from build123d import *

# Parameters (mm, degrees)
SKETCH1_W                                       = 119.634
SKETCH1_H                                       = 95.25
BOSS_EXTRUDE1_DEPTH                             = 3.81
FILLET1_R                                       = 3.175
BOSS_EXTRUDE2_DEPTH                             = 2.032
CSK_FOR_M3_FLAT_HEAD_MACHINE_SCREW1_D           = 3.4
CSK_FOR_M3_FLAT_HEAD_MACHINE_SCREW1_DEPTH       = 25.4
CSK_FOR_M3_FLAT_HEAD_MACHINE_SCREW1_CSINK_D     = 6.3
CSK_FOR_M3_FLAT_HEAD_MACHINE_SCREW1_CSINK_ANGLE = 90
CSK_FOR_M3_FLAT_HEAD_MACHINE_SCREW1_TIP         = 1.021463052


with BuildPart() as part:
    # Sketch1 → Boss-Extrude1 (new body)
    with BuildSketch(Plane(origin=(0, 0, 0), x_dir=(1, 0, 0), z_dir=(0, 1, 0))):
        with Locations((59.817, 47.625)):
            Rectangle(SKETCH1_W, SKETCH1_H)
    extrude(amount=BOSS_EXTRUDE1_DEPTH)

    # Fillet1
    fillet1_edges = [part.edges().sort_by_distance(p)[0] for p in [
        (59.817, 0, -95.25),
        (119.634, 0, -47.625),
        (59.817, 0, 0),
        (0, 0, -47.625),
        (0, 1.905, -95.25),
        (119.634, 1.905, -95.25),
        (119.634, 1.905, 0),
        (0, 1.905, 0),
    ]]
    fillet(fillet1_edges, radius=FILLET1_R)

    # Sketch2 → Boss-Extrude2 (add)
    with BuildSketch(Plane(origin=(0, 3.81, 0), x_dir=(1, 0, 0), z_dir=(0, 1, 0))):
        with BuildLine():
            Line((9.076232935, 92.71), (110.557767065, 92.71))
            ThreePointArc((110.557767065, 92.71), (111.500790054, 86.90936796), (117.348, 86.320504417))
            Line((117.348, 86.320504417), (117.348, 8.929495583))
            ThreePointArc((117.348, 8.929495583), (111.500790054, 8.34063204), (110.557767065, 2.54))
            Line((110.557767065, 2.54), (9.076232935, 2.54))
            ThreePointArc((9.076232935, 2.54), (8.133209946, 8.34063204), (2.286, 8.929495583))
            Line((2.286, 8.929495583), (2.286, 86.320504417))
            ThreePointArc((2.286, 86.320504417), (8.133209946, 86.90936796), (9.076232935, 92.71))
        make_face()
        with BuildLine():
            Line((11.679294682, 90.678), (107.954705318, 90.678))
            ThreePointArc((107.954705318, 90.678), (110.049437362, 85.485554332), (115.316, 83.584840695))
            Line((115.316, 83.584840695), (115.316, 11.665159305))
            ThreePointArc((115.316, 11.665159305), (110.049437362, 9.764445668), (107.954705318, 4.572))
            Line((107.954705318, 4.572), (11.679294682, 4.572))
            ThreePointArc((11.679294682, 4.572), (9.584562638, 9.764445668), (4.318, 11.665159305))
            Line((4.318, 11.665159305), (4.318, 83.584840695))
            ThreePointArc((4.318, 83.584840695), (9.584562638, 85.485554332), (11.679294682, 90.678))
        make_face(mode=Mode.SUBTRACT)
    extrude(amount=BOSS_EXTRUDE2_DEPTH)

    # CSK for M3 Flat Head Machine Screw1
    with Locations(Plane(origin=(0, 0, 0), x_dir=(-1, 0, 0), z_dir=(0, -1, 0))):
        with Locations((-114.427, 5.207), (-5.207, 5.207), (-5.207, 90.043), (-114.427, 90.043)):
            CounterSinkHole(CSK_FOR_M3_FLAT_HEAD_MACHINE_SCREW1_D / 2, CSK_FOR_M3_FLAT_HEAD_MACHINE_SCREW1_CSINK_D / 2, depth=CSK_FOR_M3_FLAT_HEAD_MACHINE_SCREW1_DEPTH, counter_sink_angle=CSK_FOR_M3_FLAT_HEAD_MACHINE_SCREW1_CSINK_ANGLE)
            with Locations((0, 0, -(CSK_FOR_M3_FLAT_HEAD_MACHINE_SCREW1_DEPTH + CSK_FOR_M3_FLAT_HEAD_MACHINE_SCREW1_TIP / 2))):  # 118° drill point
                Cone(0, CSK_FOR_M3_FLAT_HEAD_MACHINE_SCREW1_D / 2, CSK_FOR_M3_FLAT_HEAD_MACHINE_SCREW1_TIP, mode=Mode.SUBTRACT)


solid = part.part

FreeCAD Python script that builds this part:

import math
import FreeCAD as App
import Part
import Sketcher

V = App.Vector
Q = App.Units.Quantity


def edges_at(feature, points):
    """Names of the edges that pass closest to the given points."""
    edges = feature.Shape.Edges
    near = lambda p: min(range(len(edges)), key=lambda i: edges[i].distToShape(Part.Vertex(*p))[0])
    return sorted({f"Edge{near(p) + 1}" for p in points})


def add_polygon(sketch, points):
    """Adds a closed chain of lines whose ends are joined by coincident constraints."""
    first, n = sketch.GeometryCount, len(points)
    for a, b in zip(points, points[1:] + points[:1]):
        sketch.addGeometry(Part.LineSegment(App.Vector(*a, 0), App.Vector(*b, 0)), False)
    for i in range(n):
        sketch.addConstraint(Sketcher.Constraint("Coincident", first + i, 2, first + (i + 1) % n, 1))

doc = App.newDocument("Part")
body = doc.addObject("PartDesign::Body", "Body")

# Sketch on XZ plane
sketch1 = doc.addObject("Sketcher::SketchObject", "Sketch")
body.addObject(sketch1)
sketch1.AttachmentSupport = (doc.XZ_Plane, [""])
sketch1.MapMode = "FlatFace"
add_polygon(sketch1, [(0, -95), (0, 0), (120, 0), (120, -95)])  # lines 0-3
sketch1.addConstraint([
    Sketcher.Constraint("Vertical", 0),
    Sketcher.Constraint("Horizontal", 1),
    Sketcher.Constraint("Vertical", 2),
    Sketcher.Constraint("Horizontal", 3),
    Sketcher.Constraint("Coincident", 0, 2, -1, 1),
    Sketcher.Constraint("DistanceX", 1, 1, 1, 2, Q("4.71 in")),
    Sketcher.Constraint("DistanceY", 0, 1, 0, 2, Q("3.75 in")),
])
pad1 = doc.addObject("PartDesign::Pad", "Pad")
body.addObject(pad1)
pad1.Profile = sketch1
pad1.Length = Q("0.15 in")
pad1.Reversed = True
doc.recompute()

fillet = doc.addObject("PartDesign::Fillet", "Fillet")
body.addObject(fillet)
fillet.Base = (pad1, edges_at(pad1, [
    (59.817, 0, -95.25),
    (119.634, 0, -47.625),
    (59.817, 0, 0),
    (0, 0, -47.625),
    (0, 1.905, -95.25),
    (119.634, 1.905, -95.25),
    (119.634, 1.905, 0),
    (0, 1.905, 0),
]))
fillet.Radius = Q("0.125 in")

# Sketch on XZ plane
sketch2 = doc.addObject("Sketcher::SketchObject", "Sketch001")
body.addObject(sketch2)
sketch2.AttachmentSupport = (doc.XZ_Plane, [""])
sketch2.MapMode = "FlatFace"
sketch2.AttachmentOffset = App.Placement(V(0, 0, -0.15 * 25.4), App.Rotation())
sketch2.addGeometry([
    Part.LineSegment(V(110.6, -92.7, 0), V(9.1, -92.7, 0)),  # 0
    Part.ArcOfCircle(Part.Circle(V(4.8, -90.4, 0), V(0, 0, 1), 4.8), math.radians(-28), math.radians(122)),  # 1
    Part.LineSegment(V(2.3, -86.3, 0), V(2.3, -8.9, 0)),  # 2
    Part.ArcOfCircle(Part.Circle(V(4.8, -4.8, 0), V(0, 0, 1), 4.8), math.radians(-122), math.radians(28)),  # 3
    Part.LineSegment(V(9.1, -2.5, 0), V(110.6, -2.5, 0)),  # 4
    Part.ArcOfCircle(Part.Circle(V(114.8, -4.8, 0), V(0, 0, 1), 4.8), math.radians(152), math.radians(302)),  # 5
    Part.LineSegment(V(117.3, -8.9, 0), V(117.3, -86.3, 0)),  # 6
    Part.ArcOfCircle(Part.Circle(V(114.8, -90.4, 0), V(0, 0, 1), 4.8), math.radians(58), math.radians(208)),  # 7
    Part.LineSegment(V(11.7, -90.7, 0), V(108, -90.7, 0)),  # 8
    Part.ArcOfCircle(Part.Circle(V(114.8, -90.4, 0), V(0, 0, 1), 6.9), math.radians(86), math.radians(182)),  # 9
    Part.LineSegment(V(115.3, -83.6, 0), V(115.3, -11.7, 0)),  # 10
    Part.ArcOfCircle(Part.Circle(V(114.8, -4.8, 0), V(0, 0, 1), 6.9), math.radians(178), math.radians(274)),  # 11
    Part.LineSegment(V(108, -4.6, 0), V(11.7, -4.6, 0)),  # 12
    Part.ArcOfCircle(Part.Circle(V(4.8, -4.8, 0), V(0, 0, 1), 6.9), math.radians(-94), math.radians(2)),  # 13
    Part.LineSegment(V(4.3, -11.7, 0), V(4.3, -83.6, 0)),  # 14
    Part.ArcOfCircle(Part.Circle(V(4.8, -90.4, 0), V(0, 0, 1), 6.9), math.radians(-2), math.radians(94)),  # 15
], False)
sketch2.addConstraint([
    Sketcher.Constraint("Coincident", 0, 2, 1, 1),
    Sketcher.Constraint("Coincident", 1, 2, 2, 1),
    Sketcher.Constraint("Coincident", 2, 2, 3, 1),
    Sketcher.Constraint("Coincident", 3, 2, 4, 1),
    Sketcher.Constraint("Coincident", 4, 2, 5, 1),
    Sketcher.Constraint("Coincident", 5, 2, 6, 1),
    Sketcher.Constraint("Coincident", 6, 2, 7, 1),
    Sketcher.Constraint("Coincident", 7, 2, 0, 1),
    Sketcher.Constraint("Coincident", 8, 2, 9, 2),
    Sketcher.Constraint("Coincident", 9, 1, 10, 1),
    Sketcher.Constraint("Coincident", 10, 2, 11, 2),
    Sketcher.Constraint("Coincident", 11, 1, 12, 1),
    Sketcher.Constraint("Coincident", 12, 2, 13, 2),
    Sketcher.Constraint("Coincident", 13, 1, 14, 1),
    Sketcher.Constraint("Coincident", 14, 2, 15, 2),
    Sketcher.Constraint("Coincident", 15, 1, 8, 1),
    Sketcher.Constraint("Horizontal", 0),
    Sketcher.Constraint("Vertical", 2),
    Sketcher.Constraint("Horizontal", 4),
    Sketcher.Constraint("Vertical", 6),
    Sketcher.Constraint("Horizontal", 8),
    Sketcher.Constraint("Vertical", 10),
    Sketcher.Constraint("Horizontal", 12),
    Sketcher.Constraint("Vertical", 14),
    Sketcher.Constraint("Coincident", 9, 3, 7, 3),
    Sketcher.Constraint("Coincident", 11, 3, 5, 3),
    Sketcher.Constraint("Coincident", 13, 3, 3, 3),
    Sketcher.Constraint("Coincident", 15, 3, 1, 3),
    Sketcher.Constraint("Equal", 1, 3),
    Sketcher.Constraint("Equal", 3, 5),
    Sketcher.Constraint("Equal", 5, 7),
    Sketcher.Constraint("Equal", 9, 11),
    Sketcher.Constraint("Equal", 11, 13),
    Sketcher.Constraint("Equal", 13, 15),
    Sketcher.Constraint("Horizontal", 3, 3, 5, 3),
    Sketcher.Constraint("Horizontal", 1, 3, 7, 3),
    Sketcher.Constraint("Horizontal", 2, 2, 5, 2),
    Sketcher.Constraint("Horizontal", 1, 2, 6, 2),
    Sketcher.Constraint("Horizontal", 10, 2, 13, 1),
    Sketcher.Constraint("Vertical", 1, 3, 3, 3),
    Sketcher.Constraint("Vertical", 0, 2, 3, 2),
    Sketcher.Constraint("Vertical", 8, 2, 11, 1),
    Sketcher.Constraint("Radius", 1, Q("0.19 in")),
    Sketcher.Constraint("Radius", 9, Q("0.27 in")),
    Sketcher.Constraint("DistanceY", 3, 2, -1, 1, Q("0.1 in")),
    Sketcher.Constraint("DistanceX", 1, 2, 15, 3, Q("0.1 in")),
    Sketcher.Constraint("DistanceX", -1, 1, 1, 3, Q("0.19 in")),
    Sketcher.Constraint("DistanceY", 1, 3, -1, 1, Q("3.56 in")),
    Sketcher.Constraint("DistanceY", 3, 3, -1, 1, Q("0.19 in")),
    Sketcher.Constraint("DistanceX", -1, 1, 5, 3, Q("4.52 in")),
    Sketcher.Constraint("DistanceY", 8, 2, -1, 1, Q("3.57 in")),
    Sketcher.Constraint("DistanceX", -1, 1, 9, 1, Q("4.54 in")),
])
pad2 = doc.addObject("PartDesign::Pad", "Pad001")
body.addObject(pad2)
pad2.Profile = sketch2
pad2.Length = Q("0.08 in")
pad2.Reversed = True

# Sketch on XZ plane
sketch3 = doc.addObject("Sketcher::SketchObject", "Sketch002")
body.addObject(sketch3)
sketch3.AttachmentSupport = (doc.XZ_Plane, [""])
sketch3.MapMode = "FlatFace"
sketch3.addGeometry([
    Part.Circle(V(114.4, -5.2, 0), V(0, 0, 1), 1.7),
    Part.Circle(V(5.2, -5.2, 0), V(0, 0, 1), 1.7),
    Part.Circle(V(5.2, -90, 0), V(0, 0, 1), 1.7),
    Part.Circle(V(114.4, -90, 0), V(0, 0, 1), 1.7),
], False)
sketch3.addConstraint([
    Sketcher.Constraint("Equal", 0, 1),
    Sketcher.Constraint("Equal", 1, 2),
    Sketcher.Constraint("Equal", 2, 3),
    Sketcher.Constraint("Horizontal", 0, 3, 1, 3),
    Sketcher.Constraint("Horizontal", 2, 3, 3, 3),
    Sketcher.Constraint("Vertical", 1, 3, 2, 3),
    Sketcher.Constraint("Vertical", 0, 3, 3, 3),
    Sketcher.Constraint("DistanceX", 1, 3, 0, 3, Q("4.3 in")),
    Sketcher.Constraint("Diameter", 0, 3.4),
    Sketcher.Constraint("DistanceY", 2, 3, 1, 3, Q("3.34 in")),
    Sketcher.Constraint("DistanceX", -1, 1, 0, 3, Q("4.505 in")),
    Sketcher.Constraint("DistanceY", 0, 3, -1, 1, Q("0.205 in")),
])
doc.recompute()
hole = doc.addObject("PartDesign::Hole", "Hole")
body.addObject(hole)
hole.Profile = sketch3
hole.ThreadType = "None"
hole.Diameter = 3.4
hole.DepthType = "Dimension"
hole.Depth = Q("1 in")
hole.DrillPoint = "Angled"
hole.DrillPointAngle = 118
hole.HoleCutType = "Countersink"
hole.HoleCutDiameter = 6.3
hole.HoleCutCountersinkAngle = 90

doc.recompute()
